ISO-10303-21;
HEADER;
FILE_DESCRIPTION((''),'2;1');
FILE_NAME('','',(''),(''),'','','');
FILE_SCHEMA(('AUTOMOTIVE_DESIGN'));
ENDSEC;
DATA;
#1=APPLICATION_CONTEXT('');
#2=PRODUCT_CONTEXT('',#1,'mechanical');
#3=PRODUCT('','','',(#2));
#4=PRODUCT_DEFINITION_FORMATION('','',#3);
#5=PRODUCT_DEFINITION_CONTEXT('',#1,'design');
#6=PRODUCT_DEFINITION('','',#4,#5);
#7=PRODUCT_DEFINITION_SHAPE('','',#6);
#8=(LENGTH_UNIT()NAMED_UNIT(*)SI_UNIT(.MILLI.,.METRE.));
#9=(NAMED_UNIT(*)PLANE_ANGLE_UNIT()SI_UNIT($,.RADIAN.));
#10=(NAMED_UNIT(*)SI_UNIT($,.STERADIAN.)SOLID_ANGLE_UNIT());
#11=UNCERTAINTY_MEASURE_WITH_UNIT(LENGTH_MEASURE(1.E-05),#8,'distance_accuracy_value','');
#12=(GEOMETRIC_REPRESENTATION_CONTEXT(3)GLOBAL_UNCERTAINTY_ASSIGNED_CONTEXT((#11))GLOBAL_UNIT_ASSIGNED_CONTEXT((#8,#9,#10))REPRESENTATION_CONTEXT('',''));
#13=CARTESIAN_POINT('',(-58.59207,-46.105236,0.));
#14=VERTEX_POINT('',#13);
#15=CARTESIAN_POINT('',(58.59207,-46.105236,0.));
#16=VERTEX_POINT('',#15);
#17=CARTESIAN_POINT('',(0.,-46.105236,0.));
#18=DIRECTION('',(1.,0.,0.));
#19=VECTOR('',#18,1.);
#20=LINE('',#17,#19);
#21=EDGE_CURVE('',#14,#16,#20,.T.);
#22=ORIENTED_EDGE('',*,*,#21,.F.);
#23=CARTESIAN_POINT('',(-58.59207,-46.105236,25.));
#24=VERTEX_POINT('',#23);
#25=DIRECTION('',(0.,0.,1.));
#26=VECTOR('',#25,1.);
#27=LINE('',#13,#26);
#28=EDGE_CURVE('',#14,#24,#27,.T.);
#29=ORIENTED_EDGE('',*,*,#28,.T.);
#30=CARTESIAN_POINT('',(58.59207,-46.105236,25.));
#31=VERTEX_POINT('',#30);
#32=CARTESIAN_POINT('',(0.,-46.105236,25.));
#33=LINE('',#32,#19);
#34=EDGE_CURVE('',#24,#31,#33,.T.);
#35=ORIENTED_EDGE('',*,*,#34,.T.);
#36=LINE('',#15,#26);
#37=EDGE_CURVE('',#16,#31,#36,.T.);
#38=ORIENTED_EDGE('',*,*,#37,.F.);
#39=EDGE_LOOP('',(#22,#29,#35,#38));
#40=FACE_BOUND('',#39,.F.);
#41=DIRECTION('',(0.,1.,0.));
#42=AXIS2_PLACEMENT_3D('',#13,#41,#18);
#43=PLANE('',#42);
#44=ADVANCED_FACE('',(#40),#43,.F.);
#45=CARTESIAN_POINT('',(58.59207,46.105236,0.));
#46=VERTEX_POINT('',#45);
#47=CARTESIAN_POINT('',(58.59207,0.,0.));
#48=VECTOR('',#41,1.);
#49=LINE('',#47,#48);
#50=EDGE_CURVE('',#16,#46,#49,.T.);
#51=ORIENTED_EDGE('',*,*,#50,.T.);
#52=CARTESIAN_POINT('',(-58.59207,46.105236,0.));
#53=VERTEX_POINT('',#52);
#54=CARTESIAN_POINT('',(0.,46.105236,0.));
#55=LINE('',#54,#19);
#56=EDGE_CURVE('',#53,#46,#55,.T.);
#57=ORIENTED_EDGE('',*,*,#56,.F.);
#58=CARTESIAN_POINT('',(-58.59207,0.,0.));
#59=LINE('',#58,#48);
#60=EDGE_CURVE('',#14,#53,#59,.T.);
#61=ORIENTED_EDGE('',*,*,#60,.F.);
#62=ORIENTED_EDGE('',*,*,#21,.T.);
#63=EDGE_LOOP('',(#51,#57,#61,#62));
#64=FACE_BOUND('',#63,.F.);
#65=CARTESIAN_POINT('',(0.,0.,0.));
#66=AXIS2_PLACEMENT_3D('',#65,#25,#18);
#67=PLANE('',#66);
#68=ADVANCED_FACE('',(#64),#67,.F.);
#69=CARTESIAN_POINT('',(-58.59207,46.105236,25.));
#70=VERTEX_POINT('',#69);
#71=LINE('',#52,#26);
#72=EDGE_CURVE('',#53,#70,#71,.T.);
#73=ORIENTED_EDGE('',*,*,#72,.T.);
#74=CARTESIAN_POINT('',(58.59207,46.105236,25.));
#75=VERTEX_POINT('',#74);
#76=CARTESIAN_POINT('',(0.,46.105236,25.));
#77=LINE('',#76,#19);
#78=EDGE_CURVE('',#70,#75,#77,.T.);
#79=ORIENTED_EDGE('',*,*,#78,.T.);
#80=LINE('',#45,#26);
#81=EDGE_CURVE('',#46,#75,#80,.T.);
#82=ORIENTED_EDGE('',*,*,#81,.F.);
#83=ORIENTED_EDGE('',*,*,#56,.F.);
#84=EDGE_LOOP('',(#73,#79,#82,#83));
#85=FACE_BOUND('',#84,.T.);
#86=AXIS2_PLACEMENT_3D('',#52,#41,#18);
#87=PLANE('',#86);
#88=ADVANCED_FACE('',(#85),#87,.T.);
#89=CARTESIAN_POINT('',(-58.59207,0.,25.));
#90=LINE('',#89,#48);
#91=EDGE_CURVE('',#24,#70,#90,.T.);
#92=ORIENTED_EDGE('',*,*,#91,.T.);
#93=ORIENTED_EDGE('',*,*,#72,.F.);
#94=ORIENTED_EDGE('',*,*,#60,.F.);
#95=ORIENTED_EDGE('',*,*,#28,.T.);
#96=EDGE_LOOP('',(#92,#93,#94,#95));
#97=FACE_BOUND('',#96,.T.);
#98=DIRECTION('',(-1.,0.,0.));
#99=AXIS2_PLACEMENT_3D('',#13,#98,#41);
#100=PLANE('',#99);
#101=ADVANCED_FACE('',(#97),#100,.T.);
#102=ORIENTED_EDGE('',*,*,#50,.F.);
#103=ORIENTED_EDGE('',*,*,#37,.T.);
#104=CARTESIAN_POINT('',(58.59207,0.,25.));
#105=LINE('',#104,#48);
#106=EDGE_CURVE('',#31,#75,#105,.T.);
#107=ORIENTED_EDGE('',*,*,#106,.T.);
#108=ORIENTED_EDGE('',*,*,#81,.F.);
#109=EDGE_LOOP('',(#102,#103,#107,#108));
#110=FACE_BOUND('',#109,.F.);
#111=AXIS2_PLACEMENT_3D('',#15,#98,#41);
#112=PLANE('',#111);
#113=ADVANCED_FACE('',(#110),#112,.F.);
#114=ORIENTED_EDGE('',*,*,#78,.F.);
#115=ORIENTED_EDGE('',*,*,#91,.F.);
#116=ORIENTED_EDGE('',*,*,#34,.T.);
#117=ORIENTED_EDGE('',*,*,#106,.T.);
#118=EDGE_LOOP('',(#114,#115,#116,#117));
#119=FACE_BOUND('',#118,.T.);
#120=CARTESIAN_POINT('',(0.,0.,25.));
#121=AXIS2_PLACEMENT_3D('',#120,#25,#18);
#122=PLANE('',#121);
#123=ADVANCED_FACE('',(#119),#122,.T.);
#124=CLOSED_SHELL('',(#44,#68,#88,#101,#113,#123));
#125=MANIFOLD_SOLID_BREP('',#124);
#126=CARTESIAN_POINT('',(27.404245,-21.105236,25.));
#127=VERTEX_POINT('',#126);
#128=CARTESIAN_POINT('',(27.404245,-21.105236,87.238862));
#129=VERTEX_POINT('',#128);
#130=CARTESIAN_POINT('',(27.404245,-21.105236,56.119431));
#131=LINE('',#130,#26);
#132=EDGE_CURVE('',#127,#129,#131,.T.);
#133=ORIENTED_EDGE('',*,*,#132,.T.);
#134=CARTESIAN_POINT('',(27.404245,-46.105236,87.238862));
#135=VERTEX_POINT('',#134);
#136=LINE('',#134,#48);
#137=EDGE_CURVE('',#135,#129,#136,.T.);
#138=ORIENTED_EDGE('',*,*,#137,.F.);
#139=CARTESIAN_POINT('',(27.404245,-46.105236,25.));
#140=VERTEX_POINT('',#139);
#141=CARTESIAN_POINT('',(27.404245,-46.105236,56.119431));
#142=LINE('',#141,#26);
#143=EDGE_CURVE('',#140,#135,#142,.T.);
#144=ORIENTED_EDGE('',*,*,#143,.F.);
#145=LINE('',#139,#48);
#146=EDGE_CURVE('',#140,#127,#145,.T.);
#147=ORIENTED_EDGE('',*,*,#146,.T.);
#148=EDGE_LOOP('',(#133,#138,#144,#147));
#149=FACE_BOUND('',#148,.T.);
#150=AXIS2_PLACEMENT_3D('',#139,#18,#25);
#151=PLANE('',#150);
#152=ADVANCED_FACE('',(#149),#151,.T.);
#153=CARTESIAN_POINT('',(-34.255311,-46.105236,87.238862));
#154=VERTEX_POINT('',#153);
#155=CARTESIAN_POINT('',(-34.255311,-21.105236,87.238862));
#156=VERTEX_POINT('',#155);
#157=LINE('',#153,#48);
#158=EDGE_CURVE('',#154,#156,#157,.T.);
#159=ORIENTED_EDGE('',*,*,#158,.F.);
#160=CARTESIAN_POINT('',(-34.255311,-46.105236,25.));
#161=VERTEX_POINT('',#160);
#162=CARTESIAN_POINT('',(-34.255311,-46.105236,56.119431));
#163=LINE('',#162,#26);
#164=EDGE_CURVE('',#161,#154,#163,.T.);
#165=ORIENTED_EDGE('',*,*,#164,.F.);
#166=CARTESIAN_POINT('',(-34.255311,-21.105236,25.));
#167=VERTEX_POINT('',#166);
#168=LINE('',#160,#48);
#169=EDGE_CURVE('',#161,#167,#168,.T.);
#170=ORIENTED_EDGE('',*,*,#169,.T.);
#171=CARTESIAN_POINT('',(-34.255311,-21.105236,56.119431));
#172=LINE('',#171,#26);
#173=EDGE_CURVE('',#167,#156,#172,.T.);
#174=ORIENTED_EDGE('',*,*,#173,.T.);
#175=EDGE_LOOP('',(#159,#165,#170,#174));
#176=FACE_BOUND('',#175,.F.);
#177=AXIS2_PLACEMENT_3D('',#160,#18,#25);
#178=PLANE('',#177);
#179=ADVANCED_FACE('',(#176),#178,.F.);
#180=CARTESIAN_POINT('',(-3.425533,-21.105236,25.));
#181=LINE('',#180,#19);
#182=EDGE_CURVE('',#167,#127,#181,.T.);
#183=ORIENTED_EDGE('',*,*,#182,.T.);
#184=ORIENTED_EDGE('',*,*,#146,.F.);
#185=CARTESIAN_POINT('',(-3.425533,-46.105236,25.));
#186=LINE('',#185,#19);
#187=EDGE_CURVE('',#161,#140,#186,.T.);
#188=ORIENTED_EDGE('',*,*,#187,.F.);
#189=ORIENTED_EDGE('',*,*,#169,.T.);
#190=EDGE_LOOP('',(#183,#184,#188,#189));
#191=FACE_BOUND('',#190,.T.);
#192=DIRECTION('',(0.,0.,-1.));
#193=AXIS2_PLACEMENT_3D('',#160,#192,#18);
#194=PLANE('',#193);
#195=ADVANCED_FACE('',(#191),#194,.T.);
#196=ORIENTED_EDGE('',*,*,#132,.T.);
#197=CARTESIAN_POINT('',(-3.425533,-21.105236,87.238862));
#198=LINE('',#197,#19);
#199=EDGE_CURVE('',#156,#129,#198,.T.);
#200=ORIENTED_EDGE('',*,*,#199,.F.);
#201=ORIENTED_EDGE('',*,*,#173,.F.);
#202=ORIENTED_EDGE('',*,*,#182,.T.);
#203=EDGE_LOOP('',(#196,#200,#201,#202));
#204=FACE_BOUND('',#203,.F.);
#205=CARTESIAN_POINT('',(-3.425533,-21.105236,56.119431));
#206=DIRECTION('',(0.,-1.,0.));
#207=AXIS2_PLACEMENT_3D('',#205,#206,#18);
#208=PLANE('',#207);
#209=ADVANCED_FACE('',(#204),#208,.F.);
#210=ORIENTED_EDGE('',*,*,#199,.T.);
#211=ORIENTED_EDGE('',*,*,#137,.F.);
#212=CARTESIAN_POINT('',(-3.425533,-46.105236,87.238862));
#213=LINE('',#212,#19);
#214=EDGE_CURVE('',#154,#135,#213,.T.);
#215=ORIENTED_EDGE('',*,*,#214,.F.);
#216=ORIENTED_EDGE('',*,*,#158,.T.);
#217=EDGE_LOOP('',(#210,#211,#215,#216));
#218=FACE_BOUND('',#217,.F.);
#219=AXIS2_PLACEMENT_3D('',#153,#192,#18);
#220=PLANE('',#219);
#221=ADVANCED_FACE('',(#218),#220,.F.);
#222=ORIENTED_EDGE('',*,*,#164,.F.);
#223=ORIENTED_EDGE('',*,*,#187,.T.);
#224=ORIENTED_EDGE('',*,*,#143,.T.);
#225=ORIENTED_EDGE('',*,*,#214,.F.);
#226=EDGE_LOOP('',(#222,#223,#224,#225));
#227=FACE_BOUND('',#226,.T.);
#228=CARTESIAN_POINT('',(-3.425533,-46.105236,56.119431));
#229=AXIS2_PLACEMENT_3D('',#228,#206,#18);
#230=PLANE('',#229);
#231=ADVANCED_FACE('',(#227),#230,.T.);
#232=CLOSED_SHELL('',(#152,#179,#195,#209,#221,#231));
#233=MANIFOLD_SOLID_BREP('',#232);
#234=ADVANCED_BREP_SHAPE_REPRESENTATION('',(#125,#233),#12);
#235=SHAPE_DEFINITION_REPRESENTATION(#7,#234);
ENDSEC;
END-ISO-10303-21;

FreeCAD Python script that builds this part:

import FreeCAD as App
import Part
import Sketcher
from FreeCAD import Vector
Q = App.Units.Quantity


def add_polygon(sketch, points):
    """Adds a closed chain of lines whose ends are joined by coincident constraints."""
    first, n = sketch.GeometryCount, len(points)
    for a, b in zip(points, points[1:] + points[:1]):
        sketch.addGeometry(Part.LineSegment(App.Vector(*a, 0), App.Vector(*b, 0)), False)
    for i in range(n):
        sketch.addConstraint(Sketcher.Constraint("Coincident", first + i, 2, first + (i + 1) % n, 1))

doc = App.newDocument("Part")
body = doc.addObject("PartDesign::Body", "Body")

sketch1 = body.newObject("Sketcher::SketchObject", "Sketch")
sketch1.AttachmentSupport = (doc.getObject("XY_Plane"), [""])
sketch1.MapMode = "FlatFace"
add_polygon(sketch1, [(-59, 46), (-59, -46), (59, -46), (59, 46)])
sketch1.addConstraint([
    Sketcher.Constraint("Vertical", 0),
    Sketcher.Constraint("Horizontal", 1),
    Sketcher.Constraint("Vertical", 2),
    Sketcher.Constraint("Horizontal", 3),
    Sketcher.Constraint("Symmetric", 0, 2, 2, 2, -1, 1),
    Sketcher.Constraint("DistanceX", 1, 1, 1, 2, Q("117.18414 mm")),
    Sketcher.Constraint("DistanceY", 0, 2, 0, 1, Q("92.210472 mm")),
])
pad1 = body.newObject("PartDesign::Pad", "Pad")
pad1.Profile = sketch1
pad1.Length = 25
body2 = doc.addObject("PartDesign::Body", "Body001")

sketch2 = body2.newObject("Sketcher::SketchObject", "Sketch001")
sketch2.AttachmentSupport = (doc.getObject("XZ_Plane001"), [""])
sketch2.MapMode = "FlatFace"
sketch2.AttachmentOffset = App.Placement(Vector(0, 0, 46.105236), App.Rotation())
add_polygon(sketch2, [(-34, 87), (-34, 25), (27, 25), (27, 87)])
sketch2.addConstraint([
    Sketcher.Constraint("Vertical", 0),
    Sketcher.Constraint("Horizontal", 1),
    Sketcher.Constraint("Vertical", 2),
    Sketcher.Constraint("Horizontal", 3),
    Sketcher.Constraint("DistanceY", -1, 1, 0, 2, Q("25 mm")),
    Sketcher.Constraint("DistanceX", 1, 1, 1, 2, Q("61.659556 mm")),
    Sketcher.Constraint("DistanceY", 0, 2, 0, 1, Q("62.238863 mm")),
    Sketcher.Constraint("DistanceX", 0, 2, -1, 1, Q("34.255311 mm")),
])
pad2 = body2.newObject("PartDesign::Pad", "Pad001")
pad2.Profile = sketch2
pad2.Length = 25
pad2.Reversed = True

doc.recompute()
